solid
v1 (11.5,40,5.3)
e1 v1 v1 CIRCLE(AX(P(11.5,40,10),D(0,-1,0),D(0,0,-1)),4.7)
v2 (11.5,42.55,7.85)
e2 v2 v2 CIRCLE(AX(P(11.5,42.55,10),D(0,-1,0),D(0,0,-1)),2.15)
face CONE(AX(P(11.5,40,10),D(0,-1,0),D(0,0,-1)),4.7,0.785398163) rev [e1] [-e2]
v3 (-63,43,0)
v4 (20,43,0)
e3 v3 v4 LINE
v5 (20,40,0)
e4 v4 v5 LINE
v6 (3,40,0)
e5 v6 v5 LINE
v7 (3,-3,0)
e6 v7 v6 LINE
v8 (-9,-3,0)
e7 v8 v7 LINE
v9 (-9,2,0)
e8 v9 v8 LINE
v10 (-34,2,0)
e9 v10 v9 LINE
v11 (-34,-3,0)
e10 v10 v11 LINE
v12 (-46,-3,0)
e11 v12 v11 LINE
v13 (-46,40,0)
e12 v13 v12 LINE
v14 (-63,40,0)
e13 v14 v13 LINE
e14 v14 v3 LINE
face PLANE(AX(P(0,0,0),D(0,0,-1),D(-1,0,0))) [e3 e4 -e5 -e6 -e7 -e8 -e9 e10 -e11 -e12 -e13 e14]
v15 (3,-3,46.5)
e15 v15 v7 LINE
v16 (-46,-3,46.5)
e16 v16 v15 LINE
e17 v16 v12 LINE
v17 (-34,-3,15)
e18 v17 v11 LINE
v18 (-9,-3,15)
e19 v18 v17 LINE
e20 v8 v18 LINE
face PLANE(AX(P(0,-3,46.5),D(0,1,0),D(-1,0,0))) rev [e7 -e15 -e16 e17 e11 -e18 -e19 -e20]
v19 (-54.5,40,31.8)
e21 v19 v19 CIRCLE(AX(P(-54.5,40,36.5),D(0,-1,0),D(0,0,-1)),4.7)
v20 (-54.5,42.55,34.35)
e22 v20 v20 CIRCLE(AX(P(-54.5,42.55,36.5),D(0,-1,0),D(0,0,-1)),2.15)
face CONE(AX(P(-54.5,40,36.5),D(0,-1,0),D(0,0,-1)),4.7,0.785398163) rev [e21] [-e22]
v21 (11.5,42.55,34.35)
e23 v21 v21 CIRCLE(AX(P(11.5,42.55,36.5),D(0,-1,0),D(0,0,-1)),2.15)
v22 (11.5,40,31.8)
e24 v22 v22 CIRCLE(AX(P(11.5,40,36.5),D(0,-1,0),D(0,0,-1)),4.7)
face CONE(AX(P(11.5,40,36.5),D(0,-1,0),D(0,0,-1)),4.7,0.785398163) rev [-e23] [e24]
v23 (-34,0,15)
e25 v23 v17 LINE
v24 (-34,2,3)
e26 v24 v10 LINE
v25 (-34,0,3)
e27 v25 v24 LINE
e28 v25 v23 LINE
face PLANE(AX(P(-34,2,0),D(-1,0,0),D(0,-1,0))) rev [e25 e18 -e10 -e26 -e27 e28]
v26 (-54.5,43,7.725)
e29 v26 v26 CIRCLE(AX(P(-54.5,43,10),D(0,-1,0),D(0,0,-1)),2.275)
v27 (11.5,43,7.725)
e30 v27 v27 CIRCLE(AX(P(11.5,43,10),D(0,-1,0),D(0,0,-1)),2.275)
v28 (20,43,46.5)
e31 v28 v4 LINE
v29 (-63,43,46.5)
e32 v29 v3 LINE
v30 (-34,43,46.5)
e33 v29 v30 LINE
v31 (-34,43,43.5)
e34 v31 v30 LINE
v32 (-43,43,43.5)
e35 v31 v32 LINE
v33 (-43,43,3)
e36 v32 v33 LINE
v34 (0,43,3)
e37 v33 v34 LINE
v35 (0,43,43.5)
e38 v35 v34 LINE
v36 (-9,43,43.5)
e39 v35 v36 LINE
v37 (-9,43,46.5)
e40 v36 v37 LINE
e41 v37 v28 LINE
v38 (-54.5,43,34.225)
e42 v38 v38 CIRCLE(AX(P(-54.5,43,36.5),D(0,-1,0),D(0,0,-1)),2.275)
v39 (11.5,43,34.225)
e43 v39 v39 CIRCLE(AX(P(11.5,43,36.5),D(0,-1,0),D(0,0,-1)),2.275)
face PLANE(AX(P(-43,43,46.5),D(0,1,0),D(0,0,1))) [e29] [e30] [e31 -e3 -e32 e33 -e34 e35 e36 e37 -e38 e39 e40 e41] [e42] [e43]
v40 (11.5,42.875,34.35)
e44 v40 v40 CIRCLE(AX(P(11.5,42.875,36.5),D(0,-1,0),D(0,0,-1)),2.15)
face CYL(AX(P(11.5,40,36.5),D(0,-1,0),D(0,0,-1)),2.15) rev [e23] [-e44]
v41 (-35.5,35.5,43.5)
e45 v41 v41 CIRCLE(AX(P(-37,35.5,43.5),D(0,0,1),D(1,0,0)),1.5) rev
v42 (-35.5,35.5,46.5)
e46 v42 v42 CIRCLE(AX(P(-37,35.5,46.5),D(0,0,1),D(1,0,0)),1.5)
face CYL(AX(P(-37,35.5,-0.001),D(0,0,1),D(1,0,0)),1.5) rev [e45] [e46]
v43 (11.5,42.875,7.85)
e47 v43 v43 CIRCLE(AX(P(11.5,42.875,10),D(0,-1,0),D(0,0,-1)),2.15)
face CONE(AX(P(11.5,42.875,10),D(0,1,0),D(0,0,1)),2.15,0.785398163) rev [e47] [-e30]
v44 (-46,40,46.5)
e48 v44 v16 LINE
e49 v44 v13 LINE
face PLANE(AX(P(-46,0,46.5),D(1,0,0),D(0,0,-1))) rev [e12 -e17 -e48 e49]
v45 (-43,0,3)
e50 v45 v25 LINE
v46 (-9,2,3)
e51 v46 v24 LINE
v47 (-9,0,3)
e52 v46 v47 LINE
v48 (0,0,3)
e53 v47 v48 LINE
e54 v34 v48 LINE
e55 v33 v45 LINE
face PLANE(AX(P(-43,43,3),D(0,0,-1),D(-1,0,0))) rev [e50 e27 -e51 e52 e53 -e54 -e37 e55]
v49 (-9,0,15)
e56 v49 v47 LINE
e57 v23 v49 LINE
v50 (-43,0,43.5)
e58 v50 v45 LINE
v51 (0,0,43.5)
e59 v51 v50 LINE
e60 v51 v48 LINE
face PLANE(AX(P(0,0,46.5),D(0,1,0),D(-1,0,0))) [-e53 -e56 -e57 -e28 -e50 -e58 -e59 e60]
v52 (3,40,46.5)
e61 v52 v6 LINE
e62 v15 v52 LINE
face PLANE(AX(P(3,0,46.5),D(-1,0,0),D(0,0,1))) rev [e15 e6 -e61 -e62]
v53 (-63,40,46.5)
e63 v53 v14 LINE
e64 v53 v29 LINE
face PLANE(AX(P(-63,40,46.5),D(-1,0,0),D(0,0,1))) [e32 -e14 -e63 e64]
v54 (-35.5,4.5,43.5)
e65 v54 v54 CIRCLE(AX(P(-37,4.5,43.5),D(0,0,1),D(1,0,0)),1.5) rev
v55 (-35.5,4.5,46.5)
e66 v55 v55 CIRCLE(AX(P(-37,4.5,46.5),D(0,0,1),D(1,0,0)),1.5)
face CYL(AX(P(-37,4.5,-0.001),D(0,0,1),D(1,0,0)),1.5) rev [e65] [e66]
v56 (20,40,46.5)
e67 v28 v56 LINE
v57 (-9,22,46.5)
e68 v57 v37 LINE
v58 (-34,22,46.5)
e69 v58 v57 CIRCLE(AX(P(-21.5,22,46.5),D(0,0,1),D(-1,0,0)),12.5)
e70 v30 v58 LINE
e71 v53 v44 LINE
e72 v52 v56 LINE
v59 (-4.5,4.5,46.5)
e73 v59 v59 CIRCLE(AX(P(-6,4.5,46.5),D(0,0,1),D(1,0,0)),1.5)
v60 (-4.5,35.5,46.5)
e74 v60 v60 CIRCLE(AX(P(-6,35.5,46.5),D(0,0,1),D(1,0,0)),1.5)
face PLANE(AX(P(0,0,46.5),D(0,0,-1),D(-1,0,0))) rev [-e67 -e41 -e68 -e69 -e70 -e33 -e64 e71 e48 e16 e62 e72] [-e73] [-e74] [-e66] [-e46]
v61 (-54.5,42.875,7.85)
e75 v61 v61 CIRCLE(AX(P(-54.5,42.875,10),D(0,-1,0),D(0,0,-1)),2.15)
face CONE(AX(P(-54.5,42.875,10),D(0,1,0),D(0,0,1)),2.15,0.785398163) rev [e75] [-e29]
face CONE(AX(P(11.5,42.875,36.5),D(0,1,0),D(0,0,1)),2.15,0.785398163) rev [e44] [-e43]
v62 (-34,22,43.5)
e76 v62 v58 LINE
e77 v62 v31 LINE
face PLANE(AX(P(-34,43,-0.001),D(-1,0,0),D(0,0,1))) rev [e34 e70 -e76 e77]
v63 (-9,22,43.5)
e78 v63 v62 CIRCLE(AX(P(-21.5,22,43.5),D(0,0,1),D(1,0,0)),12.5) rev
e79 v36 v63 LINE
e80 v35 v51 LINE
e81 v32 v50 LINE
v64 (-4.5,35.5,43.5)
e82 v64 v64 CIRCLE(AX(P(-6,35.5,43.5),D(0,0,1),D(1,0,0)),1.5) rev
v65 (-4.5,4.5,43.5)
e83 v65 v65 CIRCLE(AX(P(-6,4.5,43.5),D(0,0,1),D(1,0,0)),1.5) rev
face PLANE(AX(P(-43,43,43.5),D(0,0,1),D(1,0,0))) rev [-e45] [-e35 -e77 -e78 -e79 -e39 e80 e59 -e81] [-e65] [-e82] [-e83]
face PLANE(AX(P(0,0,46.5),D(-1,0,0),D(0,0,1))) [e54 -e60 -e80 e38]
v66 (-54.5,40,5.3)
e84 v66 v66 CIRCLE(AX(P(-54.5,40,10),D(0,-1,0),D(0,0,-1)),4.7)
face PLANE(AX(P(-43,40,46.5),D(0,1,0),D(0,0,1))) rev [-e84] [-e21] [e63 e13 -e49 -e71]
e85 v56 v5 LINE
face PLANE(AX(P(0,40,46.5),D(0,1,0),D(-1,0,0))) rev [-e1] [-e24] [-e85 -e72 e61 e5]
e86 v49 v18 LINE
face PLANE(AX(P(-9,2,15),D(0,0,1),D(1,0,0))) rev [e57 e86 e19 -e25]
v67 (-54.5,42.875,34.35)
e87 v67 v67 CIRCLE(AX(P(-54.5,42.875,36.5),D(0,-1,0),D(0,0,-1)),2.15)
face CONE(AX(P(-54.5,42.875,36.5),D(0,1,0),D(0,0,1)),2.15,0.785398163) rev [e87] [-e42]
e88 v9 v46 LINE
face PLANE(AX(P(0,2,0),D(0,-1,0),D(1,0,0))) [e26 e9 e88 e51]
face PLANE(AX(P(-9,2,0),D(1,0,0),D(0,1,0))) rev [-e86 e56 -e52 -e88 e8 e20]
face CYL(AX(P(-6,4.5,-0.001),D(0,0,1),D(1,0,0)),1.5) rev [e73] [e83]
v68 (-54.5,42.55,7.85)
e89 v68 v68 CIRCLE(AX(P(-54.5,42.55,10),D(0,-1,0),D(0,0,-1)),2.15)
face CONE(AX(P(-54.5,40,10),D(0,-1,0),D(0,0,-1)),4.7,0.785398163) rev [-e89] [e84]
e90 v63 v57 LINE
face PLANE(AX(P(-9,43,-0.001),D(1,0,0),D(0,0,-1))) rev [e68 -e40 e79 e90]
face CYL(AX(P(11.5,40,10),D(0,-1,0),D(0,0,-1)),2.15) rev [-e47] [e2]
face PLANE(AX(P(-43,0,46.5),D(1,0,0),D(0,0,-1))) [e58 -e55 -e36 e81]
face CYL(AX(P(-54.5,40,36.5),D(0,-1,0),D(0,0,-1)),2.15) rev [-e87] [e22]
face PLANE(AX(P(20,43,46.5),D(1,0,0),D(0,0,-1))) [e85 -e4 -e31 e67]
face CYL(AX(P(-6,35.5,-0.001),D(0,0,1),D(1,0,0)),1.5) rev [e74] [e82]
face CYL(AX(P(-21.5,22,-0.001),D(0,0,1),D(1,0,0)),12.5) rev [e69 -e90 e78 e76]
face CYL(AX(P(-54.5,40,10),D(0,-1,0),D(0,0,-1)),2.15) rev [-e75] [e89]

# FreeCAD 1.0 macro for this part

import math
import FreeCAD as App
import Part
import Sketcher
from FreeCAD import Vector
Q = App.Units.Quantity


def add_polygon(sketch, points):
    """Adds a closed chain of lines whose ends are joined by coincident constraints."""
    first, n = sketch.GeometryCount, len(points)
    for a, b in zip(points, points[1:] + points[:1]):
        sketch.addGeometry(Part.LineSegment(App.Vector(*a, 0), App.Vector(*b, 0)), False)
    for i in range(n):
        sketch.addConstraint(Sketcher.Constraint("Coincident", first + i, 2, first + (i + 1) % n, 1))

doc = App.newDocument("Part")
body = doc.addObject("PartDesign::Body", "Body")

# Sketch on XY plane
sketch1 = body.newObject("Sketcher::SketchObject", "Sketch")
sketch1.AttachmentSupport = (doc.getObject("XY_Plane"), [""])
sketch1.MapMode = "FlatFace"
add_polygon(sketch1, [(20, 43), (0, 43), (0, 0), (-43, 0), (-43, 43), (-63, 43), (-63, 40), (-46, 40), (-46, -3), (3, -3), (3, 40), (20, 40)])  # lines 0-11
sketch1.addConstraint([
    Sketcher.Constraint("Horizontal", 0),
    Sketcher.Constraint("Vertical", 1),
    Sketcher.Constraint("Horizontal", 2),
    Sketcher.Constraint("Vertical", 3),
    Sketcher.Constraint("Horizontal", 4),
    Sketcher.Constraint("Vertical", 5),
    Sketcher.Constraint("Horizontal", 6),
    Sketcher.Constraint("Vertical", 7),
    Sketcher.Constraint("Horizontal", 8),
    Sketcher.Constraint("Vertical", 9),
    Sketcher.Constraint("Horizontal", 10),
    Sketcher.Constraint("Vertical", 11),
    Sketcher.Constraint("Coincident", 1, 2, -1, 1),
    Sketcher.Constraint("Horizontal", 0, 2, 3, 2),
    Sketcher.Constraint("Horizontal", 6, 2, 9, 2),
    Sketcher.Constraint("Equal", 0, 4),
    Sketcher.Constraint("Equal", 6, 10),
    Sketcher.Constraint("Equal", 2, 1),
    Sketcher.Constraint("Equal", 3, 7),
    Sketcher.Constraint("DistanceX", 0, 2, 0, 1, 20.0),
    Sketcher.Constraint("DistanceX", 2, 2, 2, 1, 43.0),
    Sketcher.Constraint("DistanceX", 6, 1, 6, 2, 17.0),
    Sketcher.Constraint("DistanceY", 5, 2, 5, 1, 3.0),
])
pad1 = body.newObject("PartDesign::Pad", "Pad")
pad1.Profile = sketch1
pad1.Length = 46.5

# Sketch on XZ plane
sketch2 = body.newObject("Sketcher::SketchObject", "Sketch001")
sketch2.AttachmentSupport = (doc.getObject("XZ_Plane"), [""])
sketch2.MapMode = "FlatFace"
add_polygon(sketch2, [(-43, 0), (-43, 3), (0, 3), (0, 0)])  # lines 0-3
add_polygon(sketch2, [(-43, 43.5), (-43, 46.5), (0, 46.5), (0, 43.5)])  # lines 4-7
sketch2.addConstraint([
    Sketcher.Constraint("Vertical", 0),
    Sketcher.Constraint("Horizontal", 1),
    Sketcher.Constraint("Vertical", 2),
    Sketcher.Constraint("Horizontal", 3),
    Sketcher.Constraint("Vertical", 4),
    Sketcher.Constraint("Horizontal", 5),
    Sketcher.Constraint("Vertical", 6),
    Sketcher.Constraint("Horizontal", 7),
    Sketcher.Constraint("Coincident", 2, 2, -1, 1),
    Sketcher.Constraint("PointOnObject", 5, 2, -2),
    Sketcher.Constraint("Vertical", 3, 2, 4, 2),
    Sketcher.Constraint("Equal", 2, 4),
    Sketcher.Constraint("DistanceX", 1, 1, 1, 2, 43.0),
    Sketcher.Constraint("DistanceY", 0, 1, 0, 2, 3.0),
    Sketcher.Constraint("DistanceY", -1, 1, 4, 2, 46.5),
])
pad2 = body.newObject("PartDesign::Pad", "Pad001")
pad2.Profile = sketch2
pad2.Length = 43
pad2.Reversed = True

# Sketch on XY plane
sketch3 = body.newObject("Sketcher::SketchObject", "Sketch002")
sketch3.AttachmentSupport = (doc.getObject("XY_Plane"), [""])
sketch3.MapMode = "FlatFace"
sketch3.AttachmentOffset = App.Placement(Vector(0, 0, 46.5), App.Rotation())
sketch3.addGeometry(Part.Circle(Vector(-37, 4.5, 0), Vector(0, 0, 1), 1.5), False)
sketch3.addConstraint([
    Sketcher.Constraint("Diameter", 0, 3.0),
    Sketcher.Constraint("DistanceX", 0, 3, -1, 1, 37.0),
    Sketcher.Constraint("DistanceY", -1, 1, 0, 3, 4.5),
])
pocket1 = body.newObject("PartDesign::Pocket", "Pocket")
pocket1.Profile = sketch3
pocket1.Type = "UpToFirst"

# Sketch on XY plane
sketch4 = body.newObject("Sketcher::SketchObject", "Sketch003")
sketch4.AttachmentSupport = (doc.getObject("XY_Plane"), [""])
sketch4.MapMode = "FlatFace"
sketch4.AttachmentOffset = App.Placement(Vector(0, 0, 46.5), App.Rotation())
sketch4.addGeometry(Part.Circle(Vector(-37, 35.5, 0), Vector(0, 0, 1), 1.5), False)
sketch4.addConstraint([
    Sketcher.Constraint("Diameter", 0, 3.0),
    Sketcher.Constraint("DistanceX", 0, 3, -1, 1, 37.0),
    Sketcher.Constraint("DistanceY", -1, 1, 0, 3, 35.5),
])
pocket2 = body.newObject("PartDesign::Pocket", "Pocket001")
pocket2.Profile = sketch4
pocket2.Type = "UpToFirst"

# Sketch on XY plane
sketch5 = body.newObject("Sketcher::SketchObject", "Sketch004")
sketch5.AttachmentSupport = (doc.getObject("XY_Plane"), [""])
sketch5.MapMode = "FlatFace"
sketch5.AttachmentOffset = App.Placement(Vector(0, 0, 46.5), App.Rotation())
sketch5.addGeometry(Part.Circle(Vector(-6, 35.5, 0), Vector(0, 0, 1), 1.5), False)
sketch5.addConstraint([
    Sketcher.Constraint("Diameter", 0, 3.0),
    Sketcher.Constraint("DistanceX", 0, 3, -1, 1, 6.0),
    Sketcher.Constraint("DistanceY", -1, 1, 0, 3, 35.5),
])
pocket3 = body.newObject("PartDesign::Pocket", "Pocket002")
pocket3.Profile = sketch5
pocket3.Type = "UpToFirst"

# Sketch on XY plane
sketch6 = body.newObject("Sketcher::SketchObject", "Sketch005")
sketch6.AttachmentSupport = (doc.getObject("XY_Plane"), [""])
sketch6.MapMode = "FlatFace"
sketch6.AttachmentOffset = App.Placement(Vector(0, 0, 46.5), App.Rotation())
sketch6.addGeometry(Part.Circle(Vector(-6, 4.5, 0), Vector(0, 0, 1), 1.5), False)
sketch6.addConstraint([
    Sketcher.Constraint("Diameter", 0, 3.0),
    Sketcher.Constraint("DistanceX", 0, 3, -1, 1, 6.0),
    Sketcher.Constraint("DistanceY", -1, 1, 0, 3, 4.5),
])
pocket4 = body.newObject("PartDesign::Pocket", "Pocket003")
pocket4.Profile = sketch6
pocket4.Type = "UpToFirst"

# Sketch on XY plane
sketch7 = body.newObject("Sketcher::SketchObject", "Sketch006")
sketch7.AttachmentSupport = (doc.getObject("XY_Plane"), [""])
sketch7.MapMode = "FlatFace"
sketch7.AttachmentOffset = App.Placement(Vector(0, 0, 46.5), App.Rotation())
sketch7.addGeometry([
    Part.LineSegment(Vector(-9, 43, 0), Vector(-34, 43, 0)),
    Part.LineSegment(Vector(-34, 43, 0), Vector(-34, 22, 0)),
    Part.ArcOfCircle(Part.Circle(Vector(-21.5, 22, 0), Vector(0, 0, 1), 12.5), math.radians(180), math.radians(360)),
    Part.LineSegment(Vector(-9, 22, 0), Vector(-9, 43, 0)),
], False)
sketch7.addConstraint([
    Sketcher.Constraint("Coincident", 0, 2, 1, 1),
    Sketcher.Constraint("Tangent", 1, 2, 2, 1),
    Sketcher.Constraint("Tangent", 2, 2, 3, 1),
    Sketcher.Constraint("Coincident", 3, 2, 0, 1),
    Sketcher.Constraint("Horizontal", 0),
    Sketcher.Constraint("Vertical", 1),
    Sketcher.Constraint("Vertical", 3),
    Sketcher.Constraint("Radius", 2, 12.5),
    Sketcher.Constraint("DistanceY", 1, 2, 1, 1, 21.0),
    Sketcher.Constraint("DistanceY", -1, 1, 2, 3, 22.0),
    Sketcher.Constraint("DistanceX", 0, 2, -1, 1, 34.0),
])
pocket5 = body.newObject("PartDesign::Pocket", "Pocket004")
pocket5.Profile = sketch7
pocket5.Type = "UpToFirst"

# Sketch on YZ plane
sketch8 = body.newObject("Sketcher::SketchObject", "Sketch007")
sketch8.AttachmentSupport = (doc.getObject("YZ_Plane"), [""])
sketch8.MapMode = "FlatFace"
sketch8.AttachmentOffset = App.Placement(Vector(0, 0, -54.5), App.Rotation())
add_polygon(sketch8, [(43, 36.5), (40, 36.5), (40, 31.8), (42.55, 34.35), (42.875, 34.35), (43, 34.225)])  # lines 0-5
sketch8.addGeometry(Part.LineSegment(Vector(40, 36.5, 0), Vector(43, 36.5, 0)), True)  # axis
sketch8.addConstraint([
    Sketcher.Constraint("Horizontal", 0),
    Sketcher.Constraint("Vertical", 1),
    Sketcher.Constraint("Horizontal", 3),
    Sketcher.Constraint("Vertical", 5),
    Sketcher.Constraint("Horizontal", 6),
    Sketcher.Constraint("Coincident", 6, 1, 0, 2),
    Sketcher.Constraint("Perpendicular", 2, 4),
    Sketcher.Constraint("Vertical", 4, 2, 6, 2),
    Sketcher.Constraint("DistanceX", 0, 2, 0, 1, 3.0),
    Sketcher.Constraint("Angle", 2, Q("45 deg")),
    Sketcher.Constraint("DistanceY", 1, 2, 1, 1, 4.7),
    Sketcher.Constraint("DistanceX", -1, 1, 0, 2, 40.0),
    Sketcher.Constraint("DistanceY", -1, 1, 0, 2, 36.5),
    Sketcher.Constraint("DistanceX", 3, 1, 3, 2, 0.325),
    Sketcher.Constraint("DistanceY", 5, 1, 5, 2, 2.275),
])
groove = body.newObject("PartDesign::Groove", "Groove")
groove.Profile = sketch8
groove.ReferenceAxis = (sketch8, ["Axis0"])
groove.Angle = 360
doc.recompute()

datumline = body.newObject("PartDesign::Line", "DatumLine")
datumline.Placement = App.Placement(Vector(0, 0, 0), App.Rotation(Vector(0, 0, 1), Vector(0.927991056, 0, -0.372602469)))
linearpattern = body.newObject("PartDesign::LinearPattern", "LinearPattern")
linearpattern.Originals = [groove]
linearpattern.Direction = (datumline, [""])
linearpattern.Mode = "offset"
linearpattern.Offset = 71.121375
linearpattern.Occurrences = 2
body.Tip = linearpattern
doc.recompute()

linearpattern2 = body.newObject("PartDesign::LinearPattern", "LinearPattern001")
linearpattern2.Originals = [groove]
linearpattern2.Direction = (doc.getObject("X_Axis"), [""])
linearpattern2.Mode = "offset"
linearpattern2.Offset = 66
linearpattern2.Occurrences = 2
body.Tip = linearpattern2
doc.recompute()

linearpattern3 = body.newObject("PartDesign::LinearPattern", "LinearPattern002")
linearpattern3.Originals = [groove]
linearpattern3.Direction = (doc.getObject("Z_Axis"), [""])
linearpattern3.Mode = "offset"
linearpattern3.Offset = 26.5
linearpattern3.Occurrences = 2
linearpattern3.Reversed = True
body.Tip = linearpattern3

# Sketch on XZ plane
sketch9 = body.newObject("Sketcher::SketchObject", "Sketch008")
sketch9.AttachmentSupport = (doc.getObject("XZ_Plane"), [""])
sketch9.MapMode = "FlatFace"
sketch9.AttachmentOffset = App.Placement(Vector(0, 0, 3), App.Rotation())
add_polygon(sketch9, [(-34, 15), (-34, 0), (-9, 0), (-9, 15)])  # lines 0-3
sketch9.addConstraint([
    Sketcher.Constraint("Vertical", 0),
    Sketcher.Constraint("Horizontal", 1),
    Sketcher.Constraint("Vertical", 2),
    Sketcher.Constraint("Horizontal", 3),
    Sketcher.Constraint("PointOnObject", 0, 2, -1),
    Sketcher.Constraint("DistanceX", 1, 1, 1, 2, 25.0),
    Sketcher.Constraint("DistanceY", 0, 2, 0, 1, 15.0),
    Sketcher.Constraint("DistanceX", 0, 2, -1, 1, 34.0),
])
pocket6 = body.newObject("PartDesign::Pocket", "Pocket005")
pocket6.Profile = sketch9
pocket6.Length = 5

doc.recompute()
